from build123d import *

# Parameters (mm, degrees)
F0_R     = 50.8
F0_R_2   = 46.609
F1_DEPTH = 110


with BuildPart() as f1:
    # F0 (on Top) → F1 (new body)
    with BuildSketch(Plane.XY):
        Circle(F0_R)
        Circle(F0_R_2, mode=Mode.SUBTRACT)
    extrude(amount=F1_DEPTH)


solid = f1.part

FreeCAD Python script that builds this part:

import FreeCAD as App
import Part
import Sketcher
Q = App.Units.Quantity

doc = App.newDocument("Part")
body = doc.addObject("PartDesign::Body", "Body")

sketch1 = body.newObject("Sketcher::SketchObject", "Sketch")
sketch1.AttachmentSupport = (doc.getObject("XY_Plane"), [""])
sketch1.MapMode = "FlatFace"
sketch1.addGeometry(Part.Circle(App.Vector(0, 0, 0), App.Vector(0, 0, 1), 51), False)
sketch1.addGeometry(Part.Circle(App.Vector(0, 0, 0), App.Vector(0, 0, 1), 47), False)
sketch1.addConstraint(Sketcher.Constraint("Coincident", 0, 3, -1, 1))
sketch1.addConstraint(Sketcher.Constraint("Coincident", 1, 3, -1, 1))
sketch1.addConstraint(Sketcher.Constraint("Diameter", 0, Q("4 in")))
sketch1.addConstraint(Sketcher.Constraint("Diameter", 1, Q("3.67 in")))
pad1 = body.newObject("PartDesign::Pad", "Pad")
pad1.Profile = sketch1
pad1.Length = 110

doc.recompute()
